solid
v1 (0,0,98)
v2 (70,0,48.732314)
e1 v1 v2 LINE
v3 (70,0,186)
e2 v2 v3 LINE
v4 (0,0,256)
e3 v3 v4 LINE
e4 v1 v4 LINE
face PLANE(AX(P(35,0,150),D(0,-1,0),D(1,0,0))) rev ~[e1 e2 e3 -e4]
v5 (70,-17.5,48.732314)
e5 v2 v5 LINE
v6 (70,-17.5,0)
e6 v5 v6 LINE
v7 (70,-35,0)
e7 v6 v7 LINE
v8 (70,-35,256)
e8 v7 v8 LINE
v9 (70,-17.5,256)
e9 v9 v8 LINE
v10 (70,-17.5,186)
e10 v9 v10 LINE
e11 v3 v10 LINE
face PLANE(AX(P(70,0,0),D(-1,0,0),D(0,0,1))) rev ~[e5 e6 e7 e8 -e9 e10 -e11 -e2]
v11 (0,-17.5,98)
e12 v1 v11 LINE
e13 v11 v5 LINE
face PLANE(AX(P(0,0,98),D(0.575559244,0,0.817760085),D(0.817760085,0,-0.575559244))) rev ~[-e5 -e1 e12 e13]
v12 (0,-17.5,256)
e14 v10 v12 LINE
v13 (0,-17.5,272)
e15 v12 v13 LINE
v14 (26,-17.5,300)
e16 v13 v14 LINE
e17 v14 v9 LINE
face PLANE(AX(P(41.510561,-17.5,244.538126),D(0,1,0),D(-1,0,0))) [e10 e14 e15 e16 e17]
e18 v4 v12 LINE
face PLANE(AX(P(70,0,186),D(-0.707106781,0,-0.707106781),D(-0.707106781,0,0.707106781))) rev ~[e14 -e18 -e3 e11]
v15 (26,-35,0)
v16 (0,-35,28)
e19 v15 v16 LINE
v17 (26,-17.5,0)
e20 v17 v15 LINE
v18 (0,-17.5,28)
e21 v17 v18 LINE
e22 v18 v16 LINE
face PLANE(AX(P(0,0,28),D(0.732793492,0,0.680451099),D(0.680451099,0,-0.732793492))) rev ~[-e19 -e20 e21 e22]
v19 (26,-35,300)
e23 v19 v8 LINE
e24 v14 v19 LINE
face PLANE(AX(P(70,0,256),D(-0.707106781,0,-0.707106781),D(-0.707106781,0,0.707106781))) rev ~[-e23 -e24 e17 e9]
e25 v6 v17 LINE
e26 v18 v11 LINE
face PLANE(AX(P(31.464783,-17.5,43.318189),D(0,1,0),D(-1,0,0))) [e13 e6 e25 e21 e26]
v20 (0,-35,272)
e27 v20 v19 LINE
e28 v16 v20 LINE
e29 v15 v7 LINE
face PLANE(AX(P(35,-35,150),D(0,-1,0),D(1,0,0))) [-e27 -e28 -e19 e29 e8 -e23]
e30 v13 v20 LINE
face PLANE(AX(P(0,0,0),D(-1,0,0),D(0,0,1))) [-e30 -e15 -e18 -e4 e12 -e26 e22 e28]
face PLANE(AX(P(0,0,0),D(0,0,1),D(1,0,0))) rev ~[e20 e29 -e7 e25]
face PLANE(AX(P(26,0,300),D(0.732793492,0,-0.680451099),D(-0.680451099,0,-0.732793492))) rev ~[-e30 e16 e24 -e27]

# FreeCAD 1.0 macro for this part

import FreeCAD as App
import Part
import Sketcher

V = App.Vector
Q = App.Units.Quantity

doc = App.newDocument("Part")
params = doc.addObject("Spreadsheet::Sheet", "Params")
for row, (alias, value) in enumerate([
    ("sketch1_width", "70 mm"),
    ("sketch1_height", "300 mm"),
    ("pad1_length", "35 mm"),
    ("sketch2_width", "44 mm"),
    ("sketch2_width2", "26 mm"),
    ("sketch2_height", "28 mm"),
    ("sketch3_height", "70 mm"),
    ("sketch3_height2", "16 mm"),
    ("pocket2_length", "17.5 mm"),
    ("sketch4_width", "26 mm"),
    ("sketch4_height", "28 mm"),
    ("sketch5_width", "44 mm"),
    ("sketch5_height", "70 mm"),
    ("pocket4_length", "17.5 mm"),
], start=1):
    params.set(f"A{row}", alias)
    params.set(f"B{row}", "=" + value)
    params.setAlias(f"B{row}", alias)

body = doc.addObject("PartDesign::Body", "Body")

sketch1 = doc.addObject("Sketcher::SketchObject", "Sketch")
body.addObject(sketch1)
sketch1.AttachmentSupport = (doc.XZ_Plane, [""])
sketch1.MapMode = "FlatFace"
sketch1.addGeometry([
    Part.LineSegment(V(0, 300, 0), V(0, 0, 0)),
    Part.LineSegment(V(0, 0, 0), V(70, 0, 0)),
    Part.LineSegment(V(70, 0, 0), V(70, 300, 0)),
    Part.LineSegment(V(70, 300, 0), V(0, 300, 0)),
], False)
sketch1.addConstraint([
    Sketcher.Constraint("Coincident", 0, 2, 1, 1),
    Sketcher.Constraint("Coincident", 1, 2, 2, 1),
    Sketcher.Constraint("Coincident", 2, 2, 3, 1),
    Sketcher.Constraint("Coincident", 3, 2, 0, 1),
    Sketcher.Constraint("Vertical", 0),
    Sketcher.Constraint("Horizontal", 1),
    Sketcher.Constraint("Vertical", 2),
    Sketcher.Constraint("Horizontal", 3),
    Sketcher.Constraint("Coincident", 0, 2, -1, 1),
    Sketcher.Constraint("DistanceX", 1, 1, 1, 2, Q("70 mm")),
    Sketcher.Constraint("DistanceY", 0, 2, 0, 1, Q("300 mm")),
])
sketch1.setExpression("Constraints[9]", "Params.sketch1_width")
sketch1.setExpression("Constraints[10]", "Params.sketch1_height")
pad1 = doc.addObject("PartDesign::Pad", "Pad")
body.addObject(pad1)
pad1.Profile = sketch1
pad1.setExpression("Length", "Params.pad1_length")

sketch2 = doc.addObject("Sketcher::SketchObject", "Sketch001")
body.addObject(sketch2)
sketch2.AttachmentSupport = (doc.XZ_Plane, [""])
sketch2.MapMode = "FlatFace"
sketch2.addGeometry([
    Part.LineSegment(V(26, 300, 0), V(70, 300, 0)),
    Part.LineSegment(V(70, 300, 0), V(70, 256, 0)),
    Part.LineSegment(V(70, 256, 0), V(26, 300, 0)),
    Part.LineSegment(V(0, 300, 0), V(26, 300, 0)),
    Part.LineSegment(V(26, 300, 0), V(0, 272, 0)),
    Part.LineSegment(V(0, 272, 0), V(0, 300, 0)),
], False)
sketch2.addConstraint([
    Sketcher.Constraint("Coincident", 0, 2, 1, 1),
    Sketcher.Constraint("Coincident", 1, 2, 2, 1),
    Sketcher.Constraint("Coincident", 2, 2, 0, 1),
    Sketcher.Constraint("Coincident", 3, 2, 4, 1),
    Sketcher.Constraint("Coincident", 4, 2, 5, 1),
    Sketcher.Constraint("Coincident", 5, 2, 3, 1),
    Sketcher.Constraint("Horizontal", 0),
    Sketcher.Constraint("Vertical", 1),
    Sketcher.Constraint("Horizontal", 3),
    Sketcher.Constraint("Vertical", 5),
    Sketcher.Constraint("Coincident", 3, 2, 2, 2),
    Sketcher.Constraint("PointOnObject", 4, 2, -2),
    Sketcher.Constraint("Equal", 0, 1),
    Sketcher.Constraint("DistanceX", 0, 1, 0, 2, Q("44 mm")),
    Sketcher.Constraint("DistanceX", 3, 1, 3, 2, Q("26 mm")),
    Sketcher.Constraint("DistanceY", 5, 1, 5, 2, Q("28 mm")),
    Sketcher.Constraint("DistanceY", -1, 1, 0, 2, Q("300 mm")),
])
sketch2.setExpression("Constraints[13]", "Params.sketch2_width")
sketch2.setExpression("Constraints[14]", "Params.sketch2_width2")
sketch2.setExpression("Constraints[15]", "Params.sketch2_height")
pocket1 = doc.addObject("PartDesign::Pocket", "Pocket")
body.addObject(pocket1)
pocket1.Profile = sketch2
pocket1.Type = "ThroughAll"
pocket1.Reversed = True

sketch3 = doc.addObject("Sketcher::SketchObject", "Sketch002")
body.addObject(sketch3)
sketch3.AttachmentSupport = (doc.XZ_Plane, [""])
sketch3.MapMode = "FlatFace"
sketch3.addGeometry([
    Part.LineSegment(V(70, 256, 0), V(70, 186, 0)),
    Part.LineSegment(V(70, 186, 0), V(0, 256, 0)),
    Part.LineSegment(V(0, 256, 0), V(0, 272, 0)),
    Part.LineSegment(V(0, 272, 0), V(26, 300, 0)),
    Part.LineSegment(V(26, 300, 0), V(70, 256, 0)),
], False)
sketch3.addConstraint([
    Sketcher.Constraint("Coincident", 0, 2, 1, 1),
    Sketcher.Constraint("Coincident", 1, 2, 2, 1),
    Sketcher.Constraint("Coincident", 2, 2, 3, 1),
    Sketcher.Constraint("Coincident", 3, 2, 4, 1),
    Sketcher.Constraint("Coincident", 4, 2, 0, 1),
    Sketcher.Constraint("Vertical", 0),
    Sketcher.Constraint("Vertical", 2),
    Sketcher.Constraint("PointOnObject", 1, 2, -2),
    Sketcher.Constraint("Parallel", 1, 4),
    Sketcher.Constraint("Horizontal", 1, 2, 4, 2),
    Sketcher.Constraint("DistanceY", 0, 2, 0, 1, Q("70 mm")),
    Sketcher.Constraint("DistanceY", 2, 1, 2, 2, Q("16 mm")),
    Sketcher.Constraint("Angle", 1, Q("135 deg")),
    Sketcher.Constraint("DistanceY", -1, 1, 0, 2, Q("186 mm")),
    Sketcher.Constraint("DistanceX", -1, 1, 3, 2, Q("26 mm")),
])
sketch3.setExpression("Constraints[10]", "Params.sketch3_height")
sketch3.setExpression("Constraints[11]", "Params.sketch3_height2")
pocket2 = doc.addObject("PartDesign::Pocket", "Pocket001")
body.addObject(pocket2)
pocket2.Profile = sketch3
pocket2.setExpression("Length", "Params.pocket2_length")
pocket2.Reversed = True

sketch4 = doc.addObject("Sketcher::SketchObject", "Sketch003")
body.addObject(sketch4)
sketch4.AttachmentSupport = (doc.XZ_Plane, [""])
sketch4.MapMode = "FlatFace"
sketch4.addGeometry([
    Part.LineSegment(V(0, 0, 0), V(0, 28, 0)),
    Part.LineSegment(V(0, 28, 0), V(26, 0, 0)),
    Part.LineSegment(V(26, 0, 0), V(0, 0, 0)),
], False)
sketch4.addConstraint([
    Sketcher.Constraint("Coincident", 0, 2, 1, 1),
    Sketcher.Constraint("Coincident", 1, 2, 2, 1),
    Sketcher.Constraint("Coincident", 2, 2, 0, 1),
    Sketcher.Constraint("Vertical", 0),
    Sketcher.Constraint("Horizontal", 2),
    Sketcher.Constraint("Coincident", 2, 2, -1, 1),
    Sketcher.Constraint("DistanceX", 2, 2, 2, 1, Q("26 mm")),
    Sketcher.Constraint("DistanceY", 0, 1, 0, 2, Q("28 mm")),
])
sketch4.setExpression("Constraints[6]", "Params.sketch4_width")
sketch4.setExpression("Constraints[7]", "Params.sketch4_height")
pocket3 = doc.addObject("PartDesign::Pocket", "Pocket002")
body.addObject(pocket3)
pocket3.Profile = sketch4
pocket3.Type = "ThroughAll"
pocket3.Reversed = True

sketch5 = doc.addObject("Sketcher::SketchObject", "Sketch004")
body.addObject(sketch5)
sketch5.AttachmentSupport = (doc.XZ_Plane, [""])
sketch5.MapMode = "FlatFace"
sketch5.addGeometry([
    Part.LineSegment(V(0, 98, 0), V(70, 48.732314, 0)),
    Part.LineSegment(V(70, 48.732314, 0), V(70, 0, 0)),
    Part.LineSegment(V(70, 0, 0), V(26, 0, 0)),
    Part.LineSegment(V(26, 0, 0), V(0, 28, 0)),
    Part.LineSegment(V(0, 28, 0), V(0, 98, 0)),
], False)
sketch5.addConstraint([
    Sketcher.Constraint("Coincident", 0, 2, 1, 1),
    Sketcher.Constraint("Coincident", 1, 2, 2, 1),
    Sketcher.Constraint("Coincident", 2, 2, 3, 1),
    Sketcher.Constraint("Coincident", 3, 2, 4, 1),
    Sketcher.Constraint("Coincident", 4, 2, 0, 1),
    Sketcher.Constraint("Vertical", 1),
    Sketcher.Constraint("Horizontal", 2),
    Sketcher.Constraint("Vertical", 4),
    Sketcher.Constraint("PointOnObject", 1, 2, -1),
    Sketcher.Constraint("PointOnObject", 3, 2, -2),
    Sketcher.Constraint("DistanceX", 2, 2, 2, 1, Q("44 mm")),
    Sketcher.Constraint("DistanceY", 4, 1, 4, 2, Q("70 mm")),
    Sketcher.Constraint("DistanceX", -1, 1, 0, 2, Q("70 mm")),
    Sketcher.Constraint("DistanceY", -1, 1, 3, 2, Q("28 mm")),
    Sketcher.Constraint("Distance", 0, Q("85.599678 mm")),
])
sketch5.setExpression("Constraints[10]", "Params.sketch5_width")
sketch5.setExpression("Constraints[11]", "Params.sketch5_height")
pocket4 = doc.addObject("PartDesign::Pocket", "Pocket003")
body.addObject(pocket4)
pocket4.Profile = sketch5
pocket4.setExpression("Length", "Params.pocket4_length")
pocket4.Reversed = True

doc.recompute()
